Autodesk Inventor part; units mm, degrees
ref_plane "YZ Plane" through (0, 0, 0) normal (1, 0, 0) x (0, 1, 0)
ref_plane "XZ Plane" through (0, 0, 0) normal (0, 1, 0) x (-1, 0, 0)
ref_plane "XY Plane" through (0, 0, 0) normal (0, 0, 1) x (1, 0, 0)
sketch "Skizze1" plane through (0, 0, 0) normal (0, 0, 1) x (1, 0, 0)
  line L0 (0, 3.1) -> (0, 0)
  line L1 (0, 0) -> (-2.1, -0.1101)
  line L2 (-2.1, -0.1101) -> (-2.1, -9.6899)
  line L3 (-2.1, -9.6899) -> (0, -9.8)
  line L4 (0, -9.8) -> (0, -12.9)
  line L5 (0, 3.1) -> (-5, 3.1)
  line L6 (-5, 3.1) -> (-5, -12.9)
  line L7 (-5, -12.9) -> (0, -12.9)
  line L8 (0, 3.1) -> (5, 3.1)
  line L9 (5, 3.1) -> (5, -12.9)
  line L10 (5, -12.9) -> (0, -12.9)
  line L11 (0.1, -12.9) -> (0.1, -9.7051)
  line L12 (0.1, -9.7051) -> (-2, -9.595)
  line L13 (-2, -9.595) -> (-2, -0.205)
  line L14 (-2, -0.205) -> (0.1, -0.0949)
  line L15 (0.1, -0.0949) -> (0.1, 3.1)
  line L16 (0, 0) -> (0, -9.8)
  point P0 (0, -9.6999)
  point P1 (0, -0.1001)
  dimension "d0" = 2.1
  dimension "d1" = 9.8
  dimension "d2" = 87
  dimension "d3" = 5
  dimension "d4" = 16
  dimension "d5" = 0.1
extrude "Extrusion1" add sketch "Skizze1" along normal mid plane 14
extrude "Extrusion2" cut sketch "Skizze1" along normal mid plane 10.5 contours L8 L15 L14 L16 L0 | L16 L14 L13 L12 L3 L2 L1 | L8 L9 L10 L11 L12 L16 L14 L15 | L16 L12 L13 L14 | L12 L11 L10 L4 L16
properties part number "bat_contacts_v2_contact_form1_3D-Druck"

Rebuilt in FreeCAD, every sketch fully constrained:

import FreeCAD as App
import Part
import Sketcher
from FreeCAD import Vector
Q = App.Units.Quantity

doc = App.newDocument("Part")
params = doc.addObject("Spreadsheet::Sheet", "Params")
for row, (alias, value) in enumerate([
    ("sketch1_height", "16 mm"),
    ("pad1_length", "14 mm"),
    ("sketch2_width", "5 mm"),
    ("sketch2_height", "16 mm"),
    ("pocket1_length", "10.5 mm"),
], start=1):
    params.set(f"A{row}", alias)
    params.set(f"B{row}", "=" + value)
    params.setAlias(f"B{row}", alias)

body = doc.addObject("PartDesign::Body", "Body")

# Sketch on XY plane
sketch1 = doc.addObject("Sketcher::SketchObject", "Sketch")
body.addObject(sketch1)
sketch1.AttachmentSupport = (doc.XY_Plane, [""])
sketch1.MapMode = "FlatFace"
sketch1.addGeometry([
    Part.LineSegment(Vector(-5, 3, 0), Vector(-5, -13, 0)),
    Part.LineSegment(Vector(-5, -13, 0), Vector(5, -13, 0)),
    Part.LineSegment(Vector(5, -13, 0), Vector(5, 3, 0)),
    Part.LineSegment(Vector(5, 3, 0), Vector(-5, 3, 0)),
], False)
sketch1.addConstraint([
    Sketcher.Constraint("Coincident", 0, 2, 1, 1),
    Sketcher.Constraint("Coincident", 1, 2, 2, 1),
    Sketcher.Constraint("Coincident", 2, 2, 3, 1),
    Sketcher.Constraint("Coincident", 3, 2, 0, 1),
    Sketcher.Constraint("Vertical", 0),
    Sketcher.Constraint("Horizontal", 1),
    Sketcher.Constraint("Vertical", 2),
    Sketcher.Constraint("Horizontal", 3),
    Sketcher.Constraint("DistanceY", 0, 2, 0, 1, Q("16 mm")),
    Sketcher.Constraint("DistanceX", 0, 2, -1, 1, Q("5 mm")),
    Sketcher.Constraint("DistanceX", -1, 1, 1, 2, Q("5 mm")),
    Sketcher.Constraint("DistanceY", 0, 2, -1, 1, Q("12.9 mm")),
])
sketch1.setExpression("Constraints[8]", "Params.sketch1_height")
pad1 = doc.addObject("PartDesign::Pad", "Pad")
body.addObject(pad1)
pad1.Profile = sketch1
pad1.setExpression("Length", "Params.pad1_length")
pad1.Midplane = True

# Sketch on XY plane
sketch2 = doc.addObject("Sketcher::SketchObject", "Sketch001")
body.addObject(sketch2)
sketch2.AttachmentSupport = (doc.XY_Plane, [""])
sketch2.MapMode = "FlatFace"
sketch2.addGeometry([
    Part.LineSegment(Vector(0, 3.1, 0), Vector(0, 0, 0)),  # 0
    Part.LineSegment(Vector(0, 0, 0), Vector(-2.1, -0.1, 0)),  # 1
    Part.LineSegment(Vector(-2.1, -0.1, 0), Vector(-2.1, -9.7, 0)),  # 2
    Part.LineSegment(Vector(-2.1, -9.7, 0), Vector(0, -9.8, 0)),  # 3
    Part.LineSegment(Vector(0, -9.8, 0), Vector(0, -12.9, 0)),  # 4
    Part.LineSegment(Vector(0, -12.9, 0), Vector(5, -12.9, 0)),  # 5
    Part.LineSegment(Vector(5, -12.9, 0), Vector(5, 3.1, 0)),  # 6
    Part.LineSegment(Vector(5, 3.1, 0), Vector(0, 3.1, 0)),  # 7
], False)
sketch2.addConstraint([
    Sketcher.Constraint("Coincident", 0, 2, 1, 1),
    Sketcher.Constraint("Coincident", 1, 2, 2, 1),
    Sketcher.Constraint("Coincident", 2, 2, 3, 1),
    Sketcher.Constraint("Coincident", 3, 2, 4, 1),
    Sketcher.Constraint("Coincident", 4, 2, 5, 1),
    Sketcher.Constraint("Coincident", 5, 2, 6, 1),
    Sketcher.Constraint("Coincident", 6, 2, 7, 1),
    Sketcher.Constraint("Coincident", 7, 2, 0, 1),
    Sketcher.Constraint("Vertical", 0),
    Sketcher.Constraint("Vertical", 2),
    Sketcher.Constraint("Vertical", 4),
    Sketcher.Constraint("Horizontal", 5),
    Sketcher.Constraint("Vertical", 6),
    Sketcher.Constraint("Horizontal", 7),
    Sketcher.Constraint("Coincident", 0, 2, -1, 1),
    Sketcher.Constraint("PointOnObject", 3, 2, -2),
    Sketcher.Constraint("Equal", 0, 4),
    Sketcher.Constraint("Equal", 1, 3),
    Sketcher.Constraint("DistanceX", 5, 1, 5, 2, Q("5 mm")),
    Sketcher.Constraint("DistanceY", 6, 1, 6, 2, Q("16 mm")),
    Sketcher.Constraint("DistanceX", 1, 2, -1, 1, Q("2.1 mm")),
    Sketcher.Constraint("DistanceY", 3, 2, -1, 1, Q("9.8 mm")),
    Sketcher.Constraint("Angle", 1, Q("-176.9988 deg")),
])
sketch2.setExpression("Constraints[18]", "Params.sketch2_width")
sketch2.setExpression("Constraints[19]", "Params.sketch2_height")
pocket1 = doc.addObject("PartDesign::Pocket", "Pocket")
body.addObject(pocket1)
pocket1.Profile = sketch2
pocket1.setExpression("Length", "Params.pocket1_length")
pocket1.Midplane = True

doc.recompute()
